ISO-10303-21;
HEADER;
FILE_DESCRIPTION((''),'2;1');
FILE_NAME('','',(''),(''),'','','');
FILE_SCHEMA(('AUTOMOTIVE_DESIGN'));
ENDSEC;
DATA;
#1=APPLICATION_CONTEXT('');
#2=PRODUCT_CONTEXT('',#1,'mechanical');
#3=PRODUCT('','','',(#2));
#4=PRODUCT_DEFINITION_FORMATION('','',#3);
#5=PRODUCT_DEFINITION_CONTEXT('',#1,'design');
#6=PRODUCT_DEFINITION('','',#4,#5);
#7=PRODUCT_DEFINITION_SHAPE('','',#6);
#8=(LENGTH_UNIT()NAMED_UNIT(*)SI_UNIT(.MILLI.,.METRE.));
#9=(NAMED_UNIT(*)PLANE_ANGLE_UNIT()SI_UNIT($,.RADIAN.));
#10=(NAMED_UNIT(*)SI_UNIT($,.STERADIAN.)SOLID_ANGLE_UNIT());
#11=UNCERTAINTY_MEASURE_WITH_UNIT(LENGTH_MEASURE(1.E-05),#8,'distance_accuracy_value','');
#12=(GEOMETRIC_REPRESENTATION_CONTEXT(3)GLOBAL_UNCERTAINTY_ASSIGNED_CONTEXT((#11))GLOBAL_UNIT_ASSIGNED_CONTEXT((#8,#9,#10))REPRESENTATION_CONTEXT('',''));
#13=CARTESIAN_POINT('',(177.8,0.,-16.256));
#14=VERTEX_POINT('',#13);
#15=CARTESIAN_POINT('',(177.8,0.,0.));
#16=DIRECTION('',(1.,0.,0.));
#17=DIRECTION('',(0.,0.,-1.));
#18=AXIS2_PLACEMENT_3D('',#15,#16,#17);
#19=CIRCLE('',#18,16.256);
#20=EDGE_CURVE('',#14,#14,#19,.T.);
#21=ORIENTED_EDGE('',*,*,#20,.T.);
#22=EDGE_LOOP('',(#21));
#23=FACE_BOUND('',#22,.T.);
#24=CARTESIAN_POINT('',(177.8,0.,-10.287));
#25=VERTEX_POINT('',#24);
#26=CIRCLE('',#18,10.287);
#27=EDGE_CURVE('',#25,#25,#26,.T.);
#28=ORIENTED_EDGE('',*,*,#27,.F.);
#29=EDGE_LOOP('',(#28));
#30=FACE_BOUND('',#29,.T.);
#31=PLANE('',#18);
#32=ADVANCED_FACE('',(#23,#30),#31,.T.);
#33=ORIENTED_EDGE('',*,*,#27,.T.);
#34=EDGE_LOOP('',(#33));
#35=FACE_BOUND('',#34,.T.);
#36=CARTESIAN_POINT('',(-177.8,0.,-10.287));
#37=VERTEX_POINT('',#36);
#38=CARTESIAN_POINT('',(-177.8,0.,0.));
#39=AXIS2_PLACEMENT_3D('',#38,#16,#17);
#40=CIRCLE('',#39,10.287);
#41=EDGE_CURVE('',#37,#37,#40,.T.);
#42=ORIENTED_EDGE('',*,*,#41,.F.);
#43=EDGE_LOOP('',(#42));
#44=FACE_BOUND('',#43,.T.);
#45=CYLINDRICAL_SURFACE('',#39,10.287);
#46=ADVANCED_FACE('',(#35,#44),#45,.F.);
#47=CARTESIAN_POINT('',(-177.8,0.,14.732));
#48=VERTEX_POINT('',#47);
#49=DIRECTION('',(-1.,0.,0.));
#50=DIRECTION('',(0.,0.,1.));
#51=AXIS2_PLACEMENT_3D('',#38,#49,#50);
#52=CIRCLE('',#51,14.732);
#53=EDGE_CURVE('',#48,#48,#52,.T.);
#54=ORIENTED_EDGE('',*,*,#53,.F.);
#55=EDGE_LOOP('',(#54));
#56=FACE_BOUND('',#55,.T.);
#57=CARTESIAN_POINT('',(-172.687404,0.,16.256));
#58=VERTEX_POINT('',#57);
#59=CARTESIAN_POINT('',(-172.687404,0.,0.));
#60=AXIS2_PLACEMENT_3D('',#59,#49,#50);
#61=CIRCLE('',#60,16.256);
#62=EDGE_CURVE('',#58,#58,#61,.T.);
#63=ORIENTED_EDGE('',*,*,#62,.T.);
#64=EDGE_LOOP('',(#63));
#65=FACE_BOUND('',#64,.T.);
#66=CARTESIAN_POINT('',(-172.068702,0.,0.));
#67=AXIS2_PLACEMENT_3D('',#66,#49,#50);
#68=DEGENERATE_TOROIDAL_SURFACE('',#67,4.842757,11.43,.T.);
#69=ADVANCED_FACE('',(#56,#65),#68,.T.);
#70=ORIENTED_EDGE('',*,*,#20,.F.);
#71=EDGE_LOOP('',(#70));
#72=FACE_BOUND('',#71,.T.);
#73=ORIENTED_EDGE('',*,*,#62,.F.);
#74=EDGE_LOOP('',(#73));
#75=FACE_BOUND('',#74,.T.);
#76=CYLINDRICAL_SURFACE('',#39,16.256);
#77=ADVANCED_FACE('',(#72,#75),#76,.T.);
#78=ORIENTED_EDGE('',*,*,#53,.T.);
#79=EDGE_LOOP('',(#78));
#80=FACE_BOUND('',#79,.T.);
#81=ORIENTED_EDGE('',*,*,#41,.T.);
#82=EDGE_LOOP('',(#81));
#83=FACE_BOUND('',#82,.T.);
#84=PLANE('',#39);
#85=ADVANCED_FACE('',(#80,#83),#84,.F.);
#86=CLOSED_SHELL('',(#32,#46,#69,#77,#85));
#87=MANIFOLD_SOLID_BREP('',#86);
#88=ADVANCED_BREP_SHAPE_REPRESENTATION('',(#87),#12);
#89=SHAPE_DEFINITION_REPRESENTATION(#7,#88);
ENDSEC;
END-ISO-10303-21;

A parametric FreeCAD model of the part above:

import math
import FreeCAD as App
import Part
import Sketcher
from FreeCAD import Vector
Q = App.Units.Quantity

doc = App.newDocument("Part")
body = doc.addObject("PartDesign::Body", "Body")

sketch1 = body.newObject("Sketcher::SketchObject", "Sketch")
sketch1.AttachmentSupport = (doc.getObject("YZ_Plane"), [""])
sketch1.MapMode = "FlatFace"
sketch1.addGeometry([
    Part.Circle(Vector(0, 0, 0), Vector(0, 0, 1), 16),
    Part.Circle(Vector(0, 0, 0), Vector(0, 0, 1), 10),
], False)
sketch1.addConstraint([
    Sketcher.Constraint("Coincident", 0, 3, -1, 1),
    Sketcher.Constraint("Coincident", 1, 3, -1, 1),
    Sketcher.Constraint("Diameter", 0, Q("1.28 in")),
    Sketcher.Constraint("Diameter", 1, Q("0.81 in")),
])
pad1 = body.newObject("PartDesign::Pad", "Pad")
pad1.Profile = sketch1
pad1.Type = "TwoLengths"
pad1.Length = Q("7 in")
pad1.Length2 = Q("7 in")

sketch2 = body.newObject("Sketcher::SketchObject", "Sketch001")
sketch2.AttachmentSupport = (doc.getObject("XZ_Plane"), [""])
sketch2.MapMode = "FlatFace"
sketch2.addGeometry([
    Part.LineSegment(Vector(-172.7, -16.3, 0), Vector(-177.8, -16.3, 0)),
    Part.LineSegment(Vector(-177.8, -16.3, 0), Vector(-177.8, -14.7, 0)),
    Part.ArcOfCircle(Part.Circle(Vector(-172.1, -4.8, 0), Vector(0, 0, 1), 11.4), math.radians(-120), math.radians(-93)),
], False)
sketch2.addConstraint([
    Sketcher.Constraint("Coincident", 0, 2, 1, 1),
    Sketcher.Constraint("Coincident", 1, 2, 2, 1),
    Sketcher.Constraint("Coincident", 2, 2, 0, 1),
    Sketcher.Constraint("Horizontal", 0),
    Sketcher.Constraint("Vertical", 1),
    Sketcher.Constraint("Radius", 2, Q("0.45 in")),
    Sketcher.Constraint("DistanceX", 0, 2, -1, 1, Q("7 in")),
    Sketcher.Constraint("DistanceY", 1, 1, 1, 2, Q("0.06 in")),
    Sketcher.Constraint("DistanceY", 0, 2, -1, 1, Q("0.64 in")),
    Sketcher.Constraint("DistanceX", 2, 3, -1, 1, Q("172.068702 mm")),
])
groove = body.newObject("PartDesign::Groove", "Groove")
groove.Profile = sketch2
groove.ReferenceAxis = (sketch2, ["H_Axis"])
groove.Angle = 360

doc.recompute()
